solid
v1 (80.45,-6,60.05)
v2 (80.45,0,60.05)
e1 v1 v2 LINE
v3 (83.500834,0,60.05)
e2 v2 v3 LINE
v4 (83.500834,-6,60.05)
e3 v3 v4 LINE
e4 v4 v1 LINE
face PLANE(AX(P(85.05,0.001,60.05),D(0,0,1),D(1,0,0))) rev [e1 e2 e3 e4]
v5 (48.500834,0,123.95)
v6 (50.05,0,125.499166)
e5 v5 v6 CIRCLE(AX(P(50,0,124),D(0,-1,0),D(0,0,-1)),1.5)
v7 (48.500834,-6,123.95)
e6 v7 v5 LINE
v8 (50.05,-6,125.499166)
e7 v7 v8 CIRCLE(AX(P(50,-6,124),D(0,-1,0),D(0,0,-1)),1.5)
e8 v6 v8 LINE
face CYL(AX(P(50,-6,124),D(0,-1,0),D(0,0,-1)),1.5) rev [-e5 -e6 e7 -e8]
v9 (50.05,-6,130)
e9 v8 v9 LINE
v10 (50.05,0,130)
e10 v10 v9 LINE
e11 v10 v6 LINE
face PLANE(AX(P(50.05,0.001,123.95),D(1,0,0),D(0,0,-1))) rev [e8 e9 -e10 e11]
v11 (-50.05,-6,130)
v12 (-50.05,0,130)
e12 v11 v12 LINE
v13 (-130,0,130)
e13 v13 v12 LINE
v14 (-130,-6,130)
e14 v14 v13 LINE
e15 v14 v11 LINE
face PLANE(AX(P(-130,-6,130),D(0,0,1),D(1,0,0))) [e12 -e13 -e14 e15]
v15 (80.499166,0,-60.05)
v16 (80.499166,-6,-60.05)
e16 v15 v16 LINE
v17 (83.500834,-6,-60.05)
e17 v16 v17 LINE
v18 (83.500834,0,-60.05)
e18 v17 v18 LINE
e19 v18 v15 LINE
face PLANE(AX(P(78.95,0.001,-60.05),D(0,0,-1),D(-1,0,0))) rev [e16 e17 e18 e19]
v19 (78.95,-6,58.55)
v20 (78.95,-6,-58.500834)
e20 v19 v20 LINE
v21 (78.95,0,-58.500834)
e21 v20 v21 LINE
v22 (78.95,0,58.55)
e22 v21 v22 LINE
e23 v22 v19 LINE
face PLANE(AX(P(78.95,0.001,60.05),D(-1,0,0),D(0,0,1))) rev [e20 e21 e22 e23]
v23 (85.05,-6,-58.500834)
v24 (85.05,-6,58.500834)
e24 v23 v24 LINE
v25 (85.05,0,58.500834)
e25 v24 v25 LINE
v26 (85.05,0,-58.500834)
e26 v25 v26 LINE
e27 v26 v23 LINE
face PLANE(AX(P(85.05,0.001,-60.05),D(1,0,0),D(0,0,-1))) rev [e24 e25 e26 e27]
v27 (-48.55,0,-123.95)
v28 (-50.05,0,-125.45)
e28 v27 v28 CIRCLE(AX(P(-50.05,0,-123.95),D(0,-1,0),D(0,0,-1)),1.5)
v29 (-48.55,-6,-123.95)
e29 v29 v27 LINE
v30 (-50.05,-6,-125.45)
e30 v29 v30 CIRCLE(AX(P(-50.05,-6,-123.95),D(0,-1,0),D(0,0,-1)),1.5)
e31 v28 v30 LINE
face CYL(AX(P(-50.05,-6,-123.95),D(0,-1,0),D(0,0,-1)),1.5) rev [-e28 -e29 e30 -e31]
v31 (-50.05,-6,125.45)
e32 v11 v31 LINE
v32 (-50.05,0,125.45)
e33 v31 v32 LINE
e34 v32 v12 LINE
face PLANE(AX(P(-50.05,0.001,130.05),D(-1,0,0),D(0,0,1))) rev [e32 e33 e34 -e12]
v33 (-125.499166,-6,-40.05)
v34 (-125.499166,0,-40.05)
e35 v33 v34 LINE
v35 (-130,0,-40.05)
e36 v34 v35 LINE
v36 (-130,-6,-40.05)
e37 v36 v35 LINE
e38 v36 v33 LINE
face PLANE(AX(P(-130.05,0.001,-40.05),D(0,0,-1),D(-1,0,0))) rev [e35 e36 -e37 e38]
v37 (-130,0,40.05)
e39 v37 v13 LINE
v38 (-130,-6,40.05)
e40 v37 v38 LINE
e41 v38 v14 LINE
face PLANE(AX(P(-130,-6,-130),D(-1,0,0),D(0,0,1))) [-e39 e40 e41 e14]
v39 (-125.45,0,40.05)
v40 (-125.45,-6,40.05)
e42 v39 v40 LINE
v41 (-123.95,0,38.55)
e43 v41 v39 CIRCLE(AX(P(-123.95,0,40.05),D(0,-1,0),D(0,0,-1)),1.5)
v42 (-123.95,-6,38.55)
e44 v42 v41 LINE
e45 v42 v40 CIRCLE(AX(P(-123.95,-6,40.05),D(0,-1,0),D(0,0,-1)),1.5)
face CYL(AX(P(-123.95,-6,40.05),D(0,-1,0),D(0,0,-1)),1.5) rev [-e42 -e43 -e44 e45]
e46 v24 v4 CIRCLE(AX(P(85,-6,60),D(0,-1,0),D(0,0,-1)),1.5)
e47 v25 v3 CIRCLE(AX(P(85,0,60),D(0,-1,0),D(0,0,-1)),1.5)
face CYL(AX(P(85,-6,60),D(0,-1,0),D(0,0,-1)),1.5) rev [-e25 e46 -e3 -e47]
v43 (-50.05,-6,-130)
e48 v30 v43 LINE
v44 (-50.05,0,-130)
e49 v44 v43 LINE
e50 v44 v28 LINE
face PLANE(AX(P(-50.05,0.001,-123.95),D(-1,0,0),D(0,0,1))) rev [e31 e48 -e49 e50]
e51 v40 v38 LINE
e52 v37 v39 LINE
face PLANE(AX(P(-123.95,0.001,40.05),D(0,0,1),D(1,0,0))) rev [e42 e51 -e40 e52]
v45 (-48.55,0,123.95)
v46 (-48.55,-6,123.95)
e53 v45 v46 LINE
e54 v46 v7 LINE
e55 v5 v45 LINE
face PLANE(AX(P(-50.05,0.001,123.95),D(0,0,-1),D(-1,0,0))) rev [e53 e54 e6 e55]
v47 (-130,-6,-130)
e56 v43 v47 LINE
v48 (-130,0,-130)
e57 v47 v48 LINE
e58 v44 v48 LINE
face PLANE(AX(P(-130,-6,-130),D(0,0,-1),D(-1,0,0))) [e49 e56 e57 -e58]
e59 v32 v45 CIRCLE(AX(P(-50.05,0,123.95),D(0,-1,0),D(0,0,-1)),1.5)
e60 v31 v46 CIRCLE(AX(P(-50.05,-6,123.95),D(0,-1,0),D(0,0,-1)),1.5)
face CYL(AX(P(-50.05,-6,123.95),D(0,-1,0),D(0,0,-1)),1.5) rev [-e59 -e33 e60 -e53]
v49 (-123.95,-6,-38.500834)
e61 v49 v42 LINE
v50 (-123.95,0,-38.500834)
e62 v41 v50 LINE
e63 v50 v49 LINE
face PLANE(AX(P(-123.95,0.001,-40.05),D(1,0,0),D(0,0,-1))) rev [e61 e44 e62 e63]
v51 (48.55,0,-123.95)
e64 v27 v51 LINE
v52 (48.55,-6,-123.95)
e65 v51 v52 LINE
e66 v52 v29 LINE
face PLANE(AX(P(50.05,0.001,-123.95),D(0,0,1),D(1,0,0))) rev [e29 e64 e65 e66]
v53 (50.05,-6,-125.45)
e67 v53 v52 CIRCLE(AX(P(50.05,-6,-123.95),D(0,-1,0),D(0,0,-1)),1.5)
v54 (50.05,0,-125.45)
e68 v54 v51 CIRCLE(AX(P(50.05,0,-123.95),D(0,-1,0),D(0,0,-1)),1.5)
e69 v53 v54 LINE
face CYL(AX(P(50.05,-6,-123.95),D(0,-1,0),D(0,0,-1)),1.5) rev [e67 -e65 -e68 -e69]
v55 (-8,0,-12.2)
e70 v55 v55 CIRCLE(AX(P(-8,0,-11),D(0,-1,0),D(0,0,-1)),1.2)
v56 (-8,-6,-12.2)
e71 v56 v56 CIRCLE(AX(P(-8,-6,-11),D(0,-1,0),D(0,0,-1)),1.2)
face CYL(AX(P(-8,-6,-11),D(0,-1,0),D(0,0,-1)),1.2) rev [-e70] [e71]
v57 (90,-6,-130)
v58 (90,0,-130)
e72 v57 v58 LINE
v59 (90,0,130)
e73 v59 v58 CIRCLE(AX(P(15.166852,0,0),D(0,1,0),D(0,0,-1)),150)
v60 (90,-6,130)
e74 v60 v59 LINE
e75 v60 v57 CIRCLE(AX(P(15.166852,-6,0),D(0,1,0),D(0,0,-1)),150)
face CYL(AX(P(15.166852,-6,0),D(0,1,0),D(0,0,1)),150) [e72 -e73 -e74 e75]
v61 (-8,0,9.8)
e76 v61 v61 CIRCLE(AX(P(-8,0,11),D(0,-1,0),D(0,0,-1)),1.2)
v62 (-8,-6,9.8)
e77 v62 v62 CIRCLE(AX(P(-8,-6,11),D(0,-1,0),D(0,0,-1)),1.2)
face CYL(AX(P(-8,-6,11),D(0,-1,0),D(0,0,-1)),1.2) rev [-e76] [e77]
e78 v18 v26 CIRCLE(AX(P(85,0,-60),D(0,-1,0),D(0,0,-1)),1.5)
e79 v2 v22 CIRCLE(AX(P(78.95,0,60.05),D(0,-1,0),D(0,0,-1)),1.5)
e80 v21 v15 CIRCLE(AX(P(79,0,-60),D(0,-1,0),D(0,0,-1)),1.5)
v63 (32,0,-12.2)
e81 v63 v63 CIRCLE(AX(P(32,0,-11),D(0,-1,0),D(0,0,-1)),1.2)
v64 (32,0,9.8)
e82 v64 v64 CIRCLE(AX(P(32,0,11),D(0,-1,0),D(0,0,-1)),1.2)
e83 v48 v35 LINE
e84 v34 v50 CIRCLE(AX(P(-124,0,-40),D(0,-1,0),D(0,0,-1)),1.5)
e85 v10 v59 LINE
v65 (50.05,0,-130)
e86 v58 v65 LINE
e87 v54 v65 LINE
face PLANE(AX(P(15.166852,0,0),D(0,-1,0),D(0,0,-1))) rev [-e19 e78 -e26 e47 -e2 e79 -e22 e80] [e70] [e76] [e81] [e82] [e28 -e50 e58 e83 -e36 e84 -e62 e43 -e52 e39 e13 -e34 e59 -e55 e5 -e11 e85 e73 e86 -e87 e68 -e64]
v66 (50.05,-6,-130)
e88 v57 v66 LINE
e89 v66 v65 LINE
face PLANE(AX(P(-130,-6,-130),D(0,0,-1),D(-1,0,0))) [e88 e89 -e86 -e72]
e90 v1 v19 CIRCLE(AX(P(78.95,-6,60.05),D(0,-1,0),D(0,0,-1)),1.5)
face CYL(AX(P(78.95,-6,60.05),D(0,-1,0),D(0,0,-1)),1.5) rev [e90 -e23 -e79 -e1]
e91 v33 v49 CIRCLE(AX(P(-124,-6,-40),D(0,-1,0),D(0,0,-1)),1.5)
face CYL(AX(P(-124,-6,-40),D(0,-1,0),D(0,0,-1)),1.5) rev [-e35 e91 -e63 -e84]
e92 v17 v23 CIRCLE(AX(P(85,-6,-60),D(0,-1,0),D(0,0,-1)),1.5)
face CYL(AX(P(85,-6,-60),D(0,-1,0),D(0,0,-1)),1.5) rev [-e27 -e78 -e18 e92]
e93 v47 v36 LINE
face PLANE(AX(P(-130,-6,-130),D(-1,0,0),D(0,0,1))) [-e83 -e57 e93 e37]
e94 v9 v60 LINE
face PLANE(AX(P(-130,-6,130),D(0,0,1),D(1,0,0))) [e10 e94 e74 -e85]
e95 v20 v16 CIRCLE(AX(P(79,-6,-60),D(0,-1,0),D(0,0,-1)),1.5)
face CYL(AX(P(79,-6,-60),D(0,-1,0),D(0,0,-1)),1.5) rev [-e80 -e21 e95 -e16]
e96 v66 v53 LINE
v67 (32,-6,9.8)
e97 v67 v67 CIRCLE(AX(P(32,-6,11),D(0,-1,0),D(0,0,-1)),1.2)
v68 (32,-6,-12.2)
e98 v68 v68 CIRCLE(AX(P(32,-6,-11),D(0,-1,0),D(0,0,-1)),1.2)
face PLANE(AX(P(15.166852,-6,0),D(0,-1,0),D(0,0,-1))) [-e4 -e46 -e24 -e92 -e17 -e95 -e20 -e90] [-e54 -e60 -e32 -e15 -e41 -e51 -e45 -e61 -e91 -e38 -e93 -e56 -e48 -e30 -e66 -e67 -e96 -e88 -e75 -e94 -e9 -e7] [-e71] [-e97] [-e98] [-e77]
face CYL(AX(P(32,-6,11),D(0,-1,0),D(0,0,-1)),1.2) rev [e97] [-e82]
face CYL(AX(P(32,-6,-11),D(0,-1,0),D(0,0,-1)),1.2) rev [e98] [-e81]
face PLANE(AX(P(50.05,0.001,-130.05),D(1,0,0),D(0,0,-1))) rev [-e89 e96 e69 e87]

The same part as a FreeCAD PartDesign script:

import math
import FreeCAD as App
import Part
import Sketcher
from FreeCAD import Vector
Q = App.Units.Quantity

doc = App.newDocument("Part")
body = doc.addObject("PartDesign::Body", "Body")

sketch1 = doc.addObject("Sketcher::SketchObject", "Sketch")
body.addObject(sketch1)
sketch1.AttachmentSupport = (doc.XZ_Plane, [""])
sketch1.MapMode = "FlatFace"
sketch1.addGeometry([
    Part.LineSegment(Vector(90, -130, 0), Vector(-130, -130, 0)),
    Part.LineSegment(Vector(-130, -130, 0), Vector(-130, 130, 0)),
    Part.LineSegment(Vector(-130, 130, 0), Vector(90, 130, 0)),
    Part.ArcOfCircle(Part.Circle(Vector(15, 0, 0), Vector(0, 0, 1), 150), math.radians(-60), math.radians(60)),
], False)
sketch1.addConstraint([
    Sketcher.Constraint("Coincident", 0, 2, 1, 1),
    Sketcher.Constraint("Coincident", 1, 2, 2, 1),
    Sketcher.Constraint("Coincident", 2, 2, 3, 2),
    Sketcher.Constraint("Coincident", 3, 1, 0, 1),
    Sketcher.Constraint("Horizontal", 0),
    Sketcher.Constraint("Vertical", 1),
    Sketcher.Constraint("Horizontal", 2),
    Sketcher.Constraint("Symmetric", 2, 2, 3, 1, -1),
    Sketcher.Constraint("Radius", 3, Q("150 mm")),
    Sketcher.Constraint("DistanceX", 0, 2, 0, 1, Q("220 mm")),
    Sketcher.Constraint("DistanceY", 1, 1, 1, 2, Q("260 mm")),
    Sketcher.Constraint("DistanceX", 0, 2, -1, 1, Q("130 mm")),
])
pad1 = doc.addObject("PartDesign::Pad", "Pad")
body.addObject(pad1)
pad1.Profile = sketch1
pad1.Length = 6

sketch2 = doc.addObject("Sketcher::SketchObject", "Sketch001")
body.addObject(sketch2)
sketch2.AttachmentSupport = (doc.XZ_Plane, [""])
sketch2.MapMode = "FlatFace"
sketch2.AttachmentOffset = App.Placement(Vector(0, 0, 6), App.Rotation())
sketch2.addGeometry([
    Part.Circle(Vector(32, 11, 0), Vector(0, 0, 1), 1.2),
    Part.Circle(Vector(32, -11, 0), Vector(0, 0, 1), 1.2),
    Part.Circle(Vector(-8, 11, 0), Vector(0, 0, 1), 1.2),
    Part.Circle(Vector(-8, -11, 0), Vector(0, 0, 1), 1.2),
], False)
sketch2.addConstraint([
    Sketcher.Constraint("Equal", 0, 1),
    Sketcher.Constraint("Equal", 1, 2),
    Sketcher.Constraint("Equal", 2, 3),
    Sketcher.Constraint("Symmetric", 0, 3, 1, 3, -1),
    Sketcher.Constraint("Symmetric", 2, 3, 3, 3, -1),
    Sketcher.Constraint("Horizontal", 0, 3, 2, 3),
    Sketcher.Constraint("Diameter", 0, Q("2.4 mm")),
    Sketcher.Constraint("DistanceX", -1, 1, 0, 3, Q("32 mm")),
    Sketcher.Constraint("DistanceY", -1, 1, 0, 3, Q("11 mm")),
    Sketcher.Constraint("DistanceX", 2, 3, -1, 1, Q("8 mm")),
])
doc.recompute()
hole = doc.addObject("PartDesign::Hole", "Hole")
body.addObject(hole)
hole.Profile = sketch2
hole.ThreadType = "None"
hole.Diameter = 2.4
hole.DepthType = "ThroughAll"

sketch3 = doc.addObject("Sketcher::SketchObject", "Sketch002")
body.addObject(sketch3)
sketch3.AttachmentSupport = (doc.XZ_Plane, [""])
sketch3.MapMode = "FlatFace"
sketch3.AttachmentOffset = App.Placement(Vector(0, 0, 6), App.Rotation())
sketch3.addGeometry([
    Part.LineSegment(Vector(79, 60, 0), Vector(79, -60, 0)),
    Part.LineSegment(Vector(79, -60, 0), Vector(85, -60, 0)),
    Part.LineSegment(Vector(85, -60, 0), Vector(85, 60, 0)),
    Part.LineSegment(Vector(85, 60, 0), Vector(79, 60, 0)),
], False)
sketch3.addConstraint([
    Sketcher.Constraint("Coincident", 0, 2, 1, 1),
    Sketcher.Constraint("Coincident", 1, 2, 2, 1),
    Sketcher.Constraint("Coincident", 2, 2, 3, 1),
    Sketcher.Constraint("Coincident", 3, 2, 0, 1),
    Sketcher.Constraint("Vertical", 0),
    Sketcher.Constraint("Horizontal", 1),
    Sketcher.Constraint("Vertical", 2),
    Sketcher.Constraint("Horizontal", 3),
    Sketcher.Constraint("DistanceX", 1, 1, 1, 2, Q("6.1 mm")),
    Sketcher.Constraint("DistanceY", 0, 2, 0, 1, Q("120.1 mm")),
    Sketcher.Constraint("DistanceX", -1, 1, 0, 2, Q("78.95 mm")),
    Sketcher.Constraint("DistanceY", 0, 2, -1, 1, Q("60.05 mm")),
])
pocket1 = doc.addObject("PartDesign::Pocket", "Pocket")
body.addObject(pocket1)
pocket1.Profile = sketch3
pocket1.Type = "UpToFirst"

sketch4 = doc.addObject("Sketcher::SketchObject", "Sketch003")
body.addObject(sketch4)
sketch4.AttachmentSupport = (doc.XZ_Plane, [""])
sketch4.MapMode = "FlatFace"
sketch4.AttachmentOffset = App.Placement(Vector(0, 0, 6), App.Rotation())
sketch4.addGeometry([
    Part.LineSegment(Vector(-50, -124, 0), Vector(-50, -130, 0)),
    Part.LineSegment(Vector(-50, -130, 0), Vector(50, -130, 0)),
    Part.LineSegment(Vector(50, -130, 0), Vector(50, -124, 0)),
    Part.LineSegment(Vector(50, -124, 0), Vector(-50, -124, 0)),
], False)
sketch4.addConstraint([
    Sketcher.Constraint("Coincident", 0, 2, 1, 1),
    Sketcher.Constraint("Coincident", 1, 2, 2, 1),
    Sketcher.Constraint("Coincident", 2, 2, 3, 1),
    Sketcher.Constraint("Coincident", 3, 2, 0, 1),
    Sketcher.Constraint("Vertical", 0),
    Sketcher.Constraint("Horizontal", 1),
    Sketcher.Constraint("Vertical", 2),
    Sketcher.Constraint("Horizontal", 3),
    Sketcher.Constraint("DistanceX", 1, 1, 1, 2, Q("100.1 mm")),
    Sketcher.Constraint("DistanceY", 0, 2, 0, 1, Q("6.1 mm")),
    Sketcher.Constraint("DistanceX", 0, 2, -1, 1, Q("50.05 mm")),
    Sketcher.Constraint("DistanceY", 0, 2, -1, 1, Q("130.05 mm")),
])
pocket2 = doc.addObject("PartDesign::Pocket", "Pocket001")
body.addObject(pocket2)
pocket2.Profile = sketch4
pocket2.Type = "UpToFirst"

sketch5 = doc.addObject("Sketcher::SketchObject", "Sketch004")
body.addObject(sketch5)
sketch5.AttachmentSupport = (doc.XZ_Plane, [""])
sketch5.MapMode = "FlatFace"
sketch5.AttachmentOffset = App.Placement(Vector(0, 0, 6), App.Rotation())
sketch5.addGeometry([
    Part.LineSegment(Vector(-50, 130, 0), Vector(-50, 124, 0)),
    Part.LineSegment(Vector(-50, 124, 0), Vector(50, 124, 0)),
    Part.LineSegment(Vector(50, 124, 0), Vector(50, 130, 0)),
    Part.LineSegment(Vector(50, 130, 0), Vector(-50, 130, 0)),
], False)
sketch5.addConstraint([
    Sketcher.Constraint("Coincident", 0, 2, 1, 1),
    Sketcher.Constraint("Coincident", 1, 2, 2, 1),
    Sketcher.Constraint("Coincident", 2, 2, 3, 1),
    Sketcher.Constraint("Coincident", 3, 2, 0, 1),
    Sketcher.Constraint("Vertical", 0),
    Sketcher.Constraint("Horizontal", 1),
    Sketcher.Constraint("Vertical", 2),
    Sketcher.Constraint("Horizontal", 3),
    Sketcher.Constraint("DistanceX", 1, 1, 1, 2, Q("100.1 mm")),
    Sketcher.Constraint("DistanceY", 0, 2, 0, 1, Q("6.1 mm")),
    Sketcher.Constraint("DistanceX", 0, 2, -1, 1, Q("50.05 mm")),
    Sketcher.Constraint("DistanceY", -1, 1, 0, 2, Q("123.95 mm")),
])
pocket3 = doc.addObject("PartDesign::Pocket", "Pocket002")
body.addObject(pocket3)
pocket3.Profile = sketch5
pocket3.Type = "UpToFirst"

sketch6 = doc.addObject("Sketcher::SketchObject", "Sketch005")
body.addObject(sketch6)
sketch6.AttachmentSupport = (doc.XZ_Plane, [""])
sketch6.MapMode = "FlatFace"
sketch6.AttachmentOffset = App.Placement(Vector(0, 0, 6), App.Rotation())
sketch6.addGeometry([
    Part.LineSegment(Vector(-130, 40, 0), Vector(-130, -40, 0)),
    Part.LineSegment(Vector(-130, -40, 0), Vector(-124, -40, 0)),
    Part.LineSegment(Vector(-124, -40, 0), Vector(-124, 40, 0)),
    Part.LineSegment(Vector(-124, 40, 0), Vector(-130, 40, 0)),
], False)
sketch6.addConstraint([
    Sketcher.Constraint("Coincident", 0, 2, 1, 1),
    Sketcher.Constraint("Coincident", 1, 2, 2, 1),
    Sketcher.Constraint("Coincident", 2, 2, 3, 1),
    Sketcher.Constraint("Coincident", 3, 2, 0, 1),
    Sketcher.Constraint("Vertical", 0),
    Sketcher.Constraint("Horizontal", 1),
    Sketcher.Constraint("Vertical", 2),
    Sketcher.Constraint("Horizontal", 3),
    Sketcher.Constraint("DistanceX", 1, 1, 1, 2, Q("6.1 mm")),
    Sketcher.Constraint("DistanceY", 0, 2, 0, 1, Q("80.1 mm")),
    Sketcher.Constraint("DistanceX", 0, 2, -1, 1, Q("130.05 mm")),
    Sketcher.Constraint("DistanceY", 0, 2, -1, 1, Q("40.05 mm")),
])
pocket4 = doc.addObject("PartDesign::Pocket", "Pocket003")
body.addObject(pocket4)
pocket4.Profile = sketch6
pocket4.Type = "UpToFirst"

sketch7 = doc.addObject("Sketcher::SketchObject", "Sketch006")
body.addObject(sketch7)
sketch7.AttachmentSupport = (doc.XZ_Plane, [""])
sketch7.MapMode = "FlatFace"
sketch7.AttachmentOffset = App.Placement(Vector(0, 0, 6), App.Rotation())
sketch7.addGeometry([
    Part.Circle(Vector(85, -60, 0), Vector(0, 0, 1), 1.5),
    Part.Circle(Vector(79, -60, 0), Vector(0, 0, 1), 1.5),
    Part.Circle(Vector(79, 60, 0), Vector(0, 0, 1), 1.5),
    Part.Circle(Vector(85, 60, 0), Vector(0, 0, 1), 1.5),
    Part.Circle(Vector(-124, -40, 0), Vector(0, 0, 1), 1.5),
    Part.Circle(Vector(-124, 40, 0), Vector(0, 0, 1), 1.5),
    Part.Circle(Vector(-50, 124, 0), Vector(0, 0, 1), 1.5),
    Part.Circle(Vector(50, 124, 0), Vector(0, 0, 1), 1.5),
    Part.Circle(Vector(50, -124, 0), Vector(0, 0, 1), 1.5),
    Part.Circle(Vector(-50, -124, 0), Vector(0, 0, 1), 1.5),
], False)
sketch7.addConstraint([
    Sketcher.Constraint("Equal", 0, 1),
    Sketcher.Constraint("Equal", 1, 2),
    Sketcher.Constraint("Equal", 2, 3),
    Sketcher.Constraint("Equal", 3, 4),
    Sketcher.Constraint("Equal", 4, 5),
    Sketcher.Constraint("Equal", 5, 6),
    Sketcher.Constraint("Equal", 6, 7),
    Sketcher.Constraint("Equal", 7, 8),
    Sketcher.Constraint("Equal", 8, 9),
    Sketcher.Constraint("Symmetric", 6, 3, 8, 3, -1, 1),
    Sketcher.Constraint("Symmetric", 8, 3, 9, 3, -2),
    Sketcher.Constraint("Symmetric", 0, 3, 3, 3, -1),
    Sketcher.Constraint("Horizontal", 0, 3, 1, 3),
    Sketcher.Constraint("Diameter", 0, Q("3 mm")),
    Sketcher.Constraint("DistanceX", -1, 1, 0, 3, Q("85 mm")),
    Sketcher.Constraint("DistanceY", 0, 3, -1, 1, Q("60 mm")),
    Sketcher.Constraint("DistanceX", -1, 1, 1, 3, Q("79 mm")),
    Sketcher.Constraint("DistanceX", 4, 3, -1, 1, Q("124 mm")),
    Sketcher.Constraint("DistanceY", 4, 3, -1, 1, Q("40 mm")),
    Sketcher.Constraint("DistanceX", -1, 1, 7, 3, Q("50 mm")),
    Sketcher.Constraint("DistanceY", -1, 1, 7, 3, Q("124 mm")),
    Sketcher.Constraint("DistanceY", 5, 3, 2, 3, Q("20 mm")),
    Sketcher.Constraint("DistanceX", 6, 3, 2, 3, Q("129 mm")),
    Sketcher.Constraint("DistanceY", 8, 3, 2, 3, Q("184 mm")),
    Sketcher.Constraint("DistanceX", 5, 3, 2, 3, Q("202.9 mm")),
    Sketcher.Constraint("DistanceY", 5, 3, 6, 3, Q("83.9 mm")),
    Sketcher.Constraint("DistanceX", 8, 3, 2, 3, Q("28.9 mm")),
])
doc.recompute()
hole2 = doc.addObject("PartDesign::Hole", "Hole001")
body.addObject(hole2)
hole2.Profile = sketch7
hole2.ThreadType = "None"
hole2.Diameter = 3
hole2.DepthType = "Dimension"
hole2.Depth = 6
hole2.DrillPoint = "Flat"

doc.recompute()
